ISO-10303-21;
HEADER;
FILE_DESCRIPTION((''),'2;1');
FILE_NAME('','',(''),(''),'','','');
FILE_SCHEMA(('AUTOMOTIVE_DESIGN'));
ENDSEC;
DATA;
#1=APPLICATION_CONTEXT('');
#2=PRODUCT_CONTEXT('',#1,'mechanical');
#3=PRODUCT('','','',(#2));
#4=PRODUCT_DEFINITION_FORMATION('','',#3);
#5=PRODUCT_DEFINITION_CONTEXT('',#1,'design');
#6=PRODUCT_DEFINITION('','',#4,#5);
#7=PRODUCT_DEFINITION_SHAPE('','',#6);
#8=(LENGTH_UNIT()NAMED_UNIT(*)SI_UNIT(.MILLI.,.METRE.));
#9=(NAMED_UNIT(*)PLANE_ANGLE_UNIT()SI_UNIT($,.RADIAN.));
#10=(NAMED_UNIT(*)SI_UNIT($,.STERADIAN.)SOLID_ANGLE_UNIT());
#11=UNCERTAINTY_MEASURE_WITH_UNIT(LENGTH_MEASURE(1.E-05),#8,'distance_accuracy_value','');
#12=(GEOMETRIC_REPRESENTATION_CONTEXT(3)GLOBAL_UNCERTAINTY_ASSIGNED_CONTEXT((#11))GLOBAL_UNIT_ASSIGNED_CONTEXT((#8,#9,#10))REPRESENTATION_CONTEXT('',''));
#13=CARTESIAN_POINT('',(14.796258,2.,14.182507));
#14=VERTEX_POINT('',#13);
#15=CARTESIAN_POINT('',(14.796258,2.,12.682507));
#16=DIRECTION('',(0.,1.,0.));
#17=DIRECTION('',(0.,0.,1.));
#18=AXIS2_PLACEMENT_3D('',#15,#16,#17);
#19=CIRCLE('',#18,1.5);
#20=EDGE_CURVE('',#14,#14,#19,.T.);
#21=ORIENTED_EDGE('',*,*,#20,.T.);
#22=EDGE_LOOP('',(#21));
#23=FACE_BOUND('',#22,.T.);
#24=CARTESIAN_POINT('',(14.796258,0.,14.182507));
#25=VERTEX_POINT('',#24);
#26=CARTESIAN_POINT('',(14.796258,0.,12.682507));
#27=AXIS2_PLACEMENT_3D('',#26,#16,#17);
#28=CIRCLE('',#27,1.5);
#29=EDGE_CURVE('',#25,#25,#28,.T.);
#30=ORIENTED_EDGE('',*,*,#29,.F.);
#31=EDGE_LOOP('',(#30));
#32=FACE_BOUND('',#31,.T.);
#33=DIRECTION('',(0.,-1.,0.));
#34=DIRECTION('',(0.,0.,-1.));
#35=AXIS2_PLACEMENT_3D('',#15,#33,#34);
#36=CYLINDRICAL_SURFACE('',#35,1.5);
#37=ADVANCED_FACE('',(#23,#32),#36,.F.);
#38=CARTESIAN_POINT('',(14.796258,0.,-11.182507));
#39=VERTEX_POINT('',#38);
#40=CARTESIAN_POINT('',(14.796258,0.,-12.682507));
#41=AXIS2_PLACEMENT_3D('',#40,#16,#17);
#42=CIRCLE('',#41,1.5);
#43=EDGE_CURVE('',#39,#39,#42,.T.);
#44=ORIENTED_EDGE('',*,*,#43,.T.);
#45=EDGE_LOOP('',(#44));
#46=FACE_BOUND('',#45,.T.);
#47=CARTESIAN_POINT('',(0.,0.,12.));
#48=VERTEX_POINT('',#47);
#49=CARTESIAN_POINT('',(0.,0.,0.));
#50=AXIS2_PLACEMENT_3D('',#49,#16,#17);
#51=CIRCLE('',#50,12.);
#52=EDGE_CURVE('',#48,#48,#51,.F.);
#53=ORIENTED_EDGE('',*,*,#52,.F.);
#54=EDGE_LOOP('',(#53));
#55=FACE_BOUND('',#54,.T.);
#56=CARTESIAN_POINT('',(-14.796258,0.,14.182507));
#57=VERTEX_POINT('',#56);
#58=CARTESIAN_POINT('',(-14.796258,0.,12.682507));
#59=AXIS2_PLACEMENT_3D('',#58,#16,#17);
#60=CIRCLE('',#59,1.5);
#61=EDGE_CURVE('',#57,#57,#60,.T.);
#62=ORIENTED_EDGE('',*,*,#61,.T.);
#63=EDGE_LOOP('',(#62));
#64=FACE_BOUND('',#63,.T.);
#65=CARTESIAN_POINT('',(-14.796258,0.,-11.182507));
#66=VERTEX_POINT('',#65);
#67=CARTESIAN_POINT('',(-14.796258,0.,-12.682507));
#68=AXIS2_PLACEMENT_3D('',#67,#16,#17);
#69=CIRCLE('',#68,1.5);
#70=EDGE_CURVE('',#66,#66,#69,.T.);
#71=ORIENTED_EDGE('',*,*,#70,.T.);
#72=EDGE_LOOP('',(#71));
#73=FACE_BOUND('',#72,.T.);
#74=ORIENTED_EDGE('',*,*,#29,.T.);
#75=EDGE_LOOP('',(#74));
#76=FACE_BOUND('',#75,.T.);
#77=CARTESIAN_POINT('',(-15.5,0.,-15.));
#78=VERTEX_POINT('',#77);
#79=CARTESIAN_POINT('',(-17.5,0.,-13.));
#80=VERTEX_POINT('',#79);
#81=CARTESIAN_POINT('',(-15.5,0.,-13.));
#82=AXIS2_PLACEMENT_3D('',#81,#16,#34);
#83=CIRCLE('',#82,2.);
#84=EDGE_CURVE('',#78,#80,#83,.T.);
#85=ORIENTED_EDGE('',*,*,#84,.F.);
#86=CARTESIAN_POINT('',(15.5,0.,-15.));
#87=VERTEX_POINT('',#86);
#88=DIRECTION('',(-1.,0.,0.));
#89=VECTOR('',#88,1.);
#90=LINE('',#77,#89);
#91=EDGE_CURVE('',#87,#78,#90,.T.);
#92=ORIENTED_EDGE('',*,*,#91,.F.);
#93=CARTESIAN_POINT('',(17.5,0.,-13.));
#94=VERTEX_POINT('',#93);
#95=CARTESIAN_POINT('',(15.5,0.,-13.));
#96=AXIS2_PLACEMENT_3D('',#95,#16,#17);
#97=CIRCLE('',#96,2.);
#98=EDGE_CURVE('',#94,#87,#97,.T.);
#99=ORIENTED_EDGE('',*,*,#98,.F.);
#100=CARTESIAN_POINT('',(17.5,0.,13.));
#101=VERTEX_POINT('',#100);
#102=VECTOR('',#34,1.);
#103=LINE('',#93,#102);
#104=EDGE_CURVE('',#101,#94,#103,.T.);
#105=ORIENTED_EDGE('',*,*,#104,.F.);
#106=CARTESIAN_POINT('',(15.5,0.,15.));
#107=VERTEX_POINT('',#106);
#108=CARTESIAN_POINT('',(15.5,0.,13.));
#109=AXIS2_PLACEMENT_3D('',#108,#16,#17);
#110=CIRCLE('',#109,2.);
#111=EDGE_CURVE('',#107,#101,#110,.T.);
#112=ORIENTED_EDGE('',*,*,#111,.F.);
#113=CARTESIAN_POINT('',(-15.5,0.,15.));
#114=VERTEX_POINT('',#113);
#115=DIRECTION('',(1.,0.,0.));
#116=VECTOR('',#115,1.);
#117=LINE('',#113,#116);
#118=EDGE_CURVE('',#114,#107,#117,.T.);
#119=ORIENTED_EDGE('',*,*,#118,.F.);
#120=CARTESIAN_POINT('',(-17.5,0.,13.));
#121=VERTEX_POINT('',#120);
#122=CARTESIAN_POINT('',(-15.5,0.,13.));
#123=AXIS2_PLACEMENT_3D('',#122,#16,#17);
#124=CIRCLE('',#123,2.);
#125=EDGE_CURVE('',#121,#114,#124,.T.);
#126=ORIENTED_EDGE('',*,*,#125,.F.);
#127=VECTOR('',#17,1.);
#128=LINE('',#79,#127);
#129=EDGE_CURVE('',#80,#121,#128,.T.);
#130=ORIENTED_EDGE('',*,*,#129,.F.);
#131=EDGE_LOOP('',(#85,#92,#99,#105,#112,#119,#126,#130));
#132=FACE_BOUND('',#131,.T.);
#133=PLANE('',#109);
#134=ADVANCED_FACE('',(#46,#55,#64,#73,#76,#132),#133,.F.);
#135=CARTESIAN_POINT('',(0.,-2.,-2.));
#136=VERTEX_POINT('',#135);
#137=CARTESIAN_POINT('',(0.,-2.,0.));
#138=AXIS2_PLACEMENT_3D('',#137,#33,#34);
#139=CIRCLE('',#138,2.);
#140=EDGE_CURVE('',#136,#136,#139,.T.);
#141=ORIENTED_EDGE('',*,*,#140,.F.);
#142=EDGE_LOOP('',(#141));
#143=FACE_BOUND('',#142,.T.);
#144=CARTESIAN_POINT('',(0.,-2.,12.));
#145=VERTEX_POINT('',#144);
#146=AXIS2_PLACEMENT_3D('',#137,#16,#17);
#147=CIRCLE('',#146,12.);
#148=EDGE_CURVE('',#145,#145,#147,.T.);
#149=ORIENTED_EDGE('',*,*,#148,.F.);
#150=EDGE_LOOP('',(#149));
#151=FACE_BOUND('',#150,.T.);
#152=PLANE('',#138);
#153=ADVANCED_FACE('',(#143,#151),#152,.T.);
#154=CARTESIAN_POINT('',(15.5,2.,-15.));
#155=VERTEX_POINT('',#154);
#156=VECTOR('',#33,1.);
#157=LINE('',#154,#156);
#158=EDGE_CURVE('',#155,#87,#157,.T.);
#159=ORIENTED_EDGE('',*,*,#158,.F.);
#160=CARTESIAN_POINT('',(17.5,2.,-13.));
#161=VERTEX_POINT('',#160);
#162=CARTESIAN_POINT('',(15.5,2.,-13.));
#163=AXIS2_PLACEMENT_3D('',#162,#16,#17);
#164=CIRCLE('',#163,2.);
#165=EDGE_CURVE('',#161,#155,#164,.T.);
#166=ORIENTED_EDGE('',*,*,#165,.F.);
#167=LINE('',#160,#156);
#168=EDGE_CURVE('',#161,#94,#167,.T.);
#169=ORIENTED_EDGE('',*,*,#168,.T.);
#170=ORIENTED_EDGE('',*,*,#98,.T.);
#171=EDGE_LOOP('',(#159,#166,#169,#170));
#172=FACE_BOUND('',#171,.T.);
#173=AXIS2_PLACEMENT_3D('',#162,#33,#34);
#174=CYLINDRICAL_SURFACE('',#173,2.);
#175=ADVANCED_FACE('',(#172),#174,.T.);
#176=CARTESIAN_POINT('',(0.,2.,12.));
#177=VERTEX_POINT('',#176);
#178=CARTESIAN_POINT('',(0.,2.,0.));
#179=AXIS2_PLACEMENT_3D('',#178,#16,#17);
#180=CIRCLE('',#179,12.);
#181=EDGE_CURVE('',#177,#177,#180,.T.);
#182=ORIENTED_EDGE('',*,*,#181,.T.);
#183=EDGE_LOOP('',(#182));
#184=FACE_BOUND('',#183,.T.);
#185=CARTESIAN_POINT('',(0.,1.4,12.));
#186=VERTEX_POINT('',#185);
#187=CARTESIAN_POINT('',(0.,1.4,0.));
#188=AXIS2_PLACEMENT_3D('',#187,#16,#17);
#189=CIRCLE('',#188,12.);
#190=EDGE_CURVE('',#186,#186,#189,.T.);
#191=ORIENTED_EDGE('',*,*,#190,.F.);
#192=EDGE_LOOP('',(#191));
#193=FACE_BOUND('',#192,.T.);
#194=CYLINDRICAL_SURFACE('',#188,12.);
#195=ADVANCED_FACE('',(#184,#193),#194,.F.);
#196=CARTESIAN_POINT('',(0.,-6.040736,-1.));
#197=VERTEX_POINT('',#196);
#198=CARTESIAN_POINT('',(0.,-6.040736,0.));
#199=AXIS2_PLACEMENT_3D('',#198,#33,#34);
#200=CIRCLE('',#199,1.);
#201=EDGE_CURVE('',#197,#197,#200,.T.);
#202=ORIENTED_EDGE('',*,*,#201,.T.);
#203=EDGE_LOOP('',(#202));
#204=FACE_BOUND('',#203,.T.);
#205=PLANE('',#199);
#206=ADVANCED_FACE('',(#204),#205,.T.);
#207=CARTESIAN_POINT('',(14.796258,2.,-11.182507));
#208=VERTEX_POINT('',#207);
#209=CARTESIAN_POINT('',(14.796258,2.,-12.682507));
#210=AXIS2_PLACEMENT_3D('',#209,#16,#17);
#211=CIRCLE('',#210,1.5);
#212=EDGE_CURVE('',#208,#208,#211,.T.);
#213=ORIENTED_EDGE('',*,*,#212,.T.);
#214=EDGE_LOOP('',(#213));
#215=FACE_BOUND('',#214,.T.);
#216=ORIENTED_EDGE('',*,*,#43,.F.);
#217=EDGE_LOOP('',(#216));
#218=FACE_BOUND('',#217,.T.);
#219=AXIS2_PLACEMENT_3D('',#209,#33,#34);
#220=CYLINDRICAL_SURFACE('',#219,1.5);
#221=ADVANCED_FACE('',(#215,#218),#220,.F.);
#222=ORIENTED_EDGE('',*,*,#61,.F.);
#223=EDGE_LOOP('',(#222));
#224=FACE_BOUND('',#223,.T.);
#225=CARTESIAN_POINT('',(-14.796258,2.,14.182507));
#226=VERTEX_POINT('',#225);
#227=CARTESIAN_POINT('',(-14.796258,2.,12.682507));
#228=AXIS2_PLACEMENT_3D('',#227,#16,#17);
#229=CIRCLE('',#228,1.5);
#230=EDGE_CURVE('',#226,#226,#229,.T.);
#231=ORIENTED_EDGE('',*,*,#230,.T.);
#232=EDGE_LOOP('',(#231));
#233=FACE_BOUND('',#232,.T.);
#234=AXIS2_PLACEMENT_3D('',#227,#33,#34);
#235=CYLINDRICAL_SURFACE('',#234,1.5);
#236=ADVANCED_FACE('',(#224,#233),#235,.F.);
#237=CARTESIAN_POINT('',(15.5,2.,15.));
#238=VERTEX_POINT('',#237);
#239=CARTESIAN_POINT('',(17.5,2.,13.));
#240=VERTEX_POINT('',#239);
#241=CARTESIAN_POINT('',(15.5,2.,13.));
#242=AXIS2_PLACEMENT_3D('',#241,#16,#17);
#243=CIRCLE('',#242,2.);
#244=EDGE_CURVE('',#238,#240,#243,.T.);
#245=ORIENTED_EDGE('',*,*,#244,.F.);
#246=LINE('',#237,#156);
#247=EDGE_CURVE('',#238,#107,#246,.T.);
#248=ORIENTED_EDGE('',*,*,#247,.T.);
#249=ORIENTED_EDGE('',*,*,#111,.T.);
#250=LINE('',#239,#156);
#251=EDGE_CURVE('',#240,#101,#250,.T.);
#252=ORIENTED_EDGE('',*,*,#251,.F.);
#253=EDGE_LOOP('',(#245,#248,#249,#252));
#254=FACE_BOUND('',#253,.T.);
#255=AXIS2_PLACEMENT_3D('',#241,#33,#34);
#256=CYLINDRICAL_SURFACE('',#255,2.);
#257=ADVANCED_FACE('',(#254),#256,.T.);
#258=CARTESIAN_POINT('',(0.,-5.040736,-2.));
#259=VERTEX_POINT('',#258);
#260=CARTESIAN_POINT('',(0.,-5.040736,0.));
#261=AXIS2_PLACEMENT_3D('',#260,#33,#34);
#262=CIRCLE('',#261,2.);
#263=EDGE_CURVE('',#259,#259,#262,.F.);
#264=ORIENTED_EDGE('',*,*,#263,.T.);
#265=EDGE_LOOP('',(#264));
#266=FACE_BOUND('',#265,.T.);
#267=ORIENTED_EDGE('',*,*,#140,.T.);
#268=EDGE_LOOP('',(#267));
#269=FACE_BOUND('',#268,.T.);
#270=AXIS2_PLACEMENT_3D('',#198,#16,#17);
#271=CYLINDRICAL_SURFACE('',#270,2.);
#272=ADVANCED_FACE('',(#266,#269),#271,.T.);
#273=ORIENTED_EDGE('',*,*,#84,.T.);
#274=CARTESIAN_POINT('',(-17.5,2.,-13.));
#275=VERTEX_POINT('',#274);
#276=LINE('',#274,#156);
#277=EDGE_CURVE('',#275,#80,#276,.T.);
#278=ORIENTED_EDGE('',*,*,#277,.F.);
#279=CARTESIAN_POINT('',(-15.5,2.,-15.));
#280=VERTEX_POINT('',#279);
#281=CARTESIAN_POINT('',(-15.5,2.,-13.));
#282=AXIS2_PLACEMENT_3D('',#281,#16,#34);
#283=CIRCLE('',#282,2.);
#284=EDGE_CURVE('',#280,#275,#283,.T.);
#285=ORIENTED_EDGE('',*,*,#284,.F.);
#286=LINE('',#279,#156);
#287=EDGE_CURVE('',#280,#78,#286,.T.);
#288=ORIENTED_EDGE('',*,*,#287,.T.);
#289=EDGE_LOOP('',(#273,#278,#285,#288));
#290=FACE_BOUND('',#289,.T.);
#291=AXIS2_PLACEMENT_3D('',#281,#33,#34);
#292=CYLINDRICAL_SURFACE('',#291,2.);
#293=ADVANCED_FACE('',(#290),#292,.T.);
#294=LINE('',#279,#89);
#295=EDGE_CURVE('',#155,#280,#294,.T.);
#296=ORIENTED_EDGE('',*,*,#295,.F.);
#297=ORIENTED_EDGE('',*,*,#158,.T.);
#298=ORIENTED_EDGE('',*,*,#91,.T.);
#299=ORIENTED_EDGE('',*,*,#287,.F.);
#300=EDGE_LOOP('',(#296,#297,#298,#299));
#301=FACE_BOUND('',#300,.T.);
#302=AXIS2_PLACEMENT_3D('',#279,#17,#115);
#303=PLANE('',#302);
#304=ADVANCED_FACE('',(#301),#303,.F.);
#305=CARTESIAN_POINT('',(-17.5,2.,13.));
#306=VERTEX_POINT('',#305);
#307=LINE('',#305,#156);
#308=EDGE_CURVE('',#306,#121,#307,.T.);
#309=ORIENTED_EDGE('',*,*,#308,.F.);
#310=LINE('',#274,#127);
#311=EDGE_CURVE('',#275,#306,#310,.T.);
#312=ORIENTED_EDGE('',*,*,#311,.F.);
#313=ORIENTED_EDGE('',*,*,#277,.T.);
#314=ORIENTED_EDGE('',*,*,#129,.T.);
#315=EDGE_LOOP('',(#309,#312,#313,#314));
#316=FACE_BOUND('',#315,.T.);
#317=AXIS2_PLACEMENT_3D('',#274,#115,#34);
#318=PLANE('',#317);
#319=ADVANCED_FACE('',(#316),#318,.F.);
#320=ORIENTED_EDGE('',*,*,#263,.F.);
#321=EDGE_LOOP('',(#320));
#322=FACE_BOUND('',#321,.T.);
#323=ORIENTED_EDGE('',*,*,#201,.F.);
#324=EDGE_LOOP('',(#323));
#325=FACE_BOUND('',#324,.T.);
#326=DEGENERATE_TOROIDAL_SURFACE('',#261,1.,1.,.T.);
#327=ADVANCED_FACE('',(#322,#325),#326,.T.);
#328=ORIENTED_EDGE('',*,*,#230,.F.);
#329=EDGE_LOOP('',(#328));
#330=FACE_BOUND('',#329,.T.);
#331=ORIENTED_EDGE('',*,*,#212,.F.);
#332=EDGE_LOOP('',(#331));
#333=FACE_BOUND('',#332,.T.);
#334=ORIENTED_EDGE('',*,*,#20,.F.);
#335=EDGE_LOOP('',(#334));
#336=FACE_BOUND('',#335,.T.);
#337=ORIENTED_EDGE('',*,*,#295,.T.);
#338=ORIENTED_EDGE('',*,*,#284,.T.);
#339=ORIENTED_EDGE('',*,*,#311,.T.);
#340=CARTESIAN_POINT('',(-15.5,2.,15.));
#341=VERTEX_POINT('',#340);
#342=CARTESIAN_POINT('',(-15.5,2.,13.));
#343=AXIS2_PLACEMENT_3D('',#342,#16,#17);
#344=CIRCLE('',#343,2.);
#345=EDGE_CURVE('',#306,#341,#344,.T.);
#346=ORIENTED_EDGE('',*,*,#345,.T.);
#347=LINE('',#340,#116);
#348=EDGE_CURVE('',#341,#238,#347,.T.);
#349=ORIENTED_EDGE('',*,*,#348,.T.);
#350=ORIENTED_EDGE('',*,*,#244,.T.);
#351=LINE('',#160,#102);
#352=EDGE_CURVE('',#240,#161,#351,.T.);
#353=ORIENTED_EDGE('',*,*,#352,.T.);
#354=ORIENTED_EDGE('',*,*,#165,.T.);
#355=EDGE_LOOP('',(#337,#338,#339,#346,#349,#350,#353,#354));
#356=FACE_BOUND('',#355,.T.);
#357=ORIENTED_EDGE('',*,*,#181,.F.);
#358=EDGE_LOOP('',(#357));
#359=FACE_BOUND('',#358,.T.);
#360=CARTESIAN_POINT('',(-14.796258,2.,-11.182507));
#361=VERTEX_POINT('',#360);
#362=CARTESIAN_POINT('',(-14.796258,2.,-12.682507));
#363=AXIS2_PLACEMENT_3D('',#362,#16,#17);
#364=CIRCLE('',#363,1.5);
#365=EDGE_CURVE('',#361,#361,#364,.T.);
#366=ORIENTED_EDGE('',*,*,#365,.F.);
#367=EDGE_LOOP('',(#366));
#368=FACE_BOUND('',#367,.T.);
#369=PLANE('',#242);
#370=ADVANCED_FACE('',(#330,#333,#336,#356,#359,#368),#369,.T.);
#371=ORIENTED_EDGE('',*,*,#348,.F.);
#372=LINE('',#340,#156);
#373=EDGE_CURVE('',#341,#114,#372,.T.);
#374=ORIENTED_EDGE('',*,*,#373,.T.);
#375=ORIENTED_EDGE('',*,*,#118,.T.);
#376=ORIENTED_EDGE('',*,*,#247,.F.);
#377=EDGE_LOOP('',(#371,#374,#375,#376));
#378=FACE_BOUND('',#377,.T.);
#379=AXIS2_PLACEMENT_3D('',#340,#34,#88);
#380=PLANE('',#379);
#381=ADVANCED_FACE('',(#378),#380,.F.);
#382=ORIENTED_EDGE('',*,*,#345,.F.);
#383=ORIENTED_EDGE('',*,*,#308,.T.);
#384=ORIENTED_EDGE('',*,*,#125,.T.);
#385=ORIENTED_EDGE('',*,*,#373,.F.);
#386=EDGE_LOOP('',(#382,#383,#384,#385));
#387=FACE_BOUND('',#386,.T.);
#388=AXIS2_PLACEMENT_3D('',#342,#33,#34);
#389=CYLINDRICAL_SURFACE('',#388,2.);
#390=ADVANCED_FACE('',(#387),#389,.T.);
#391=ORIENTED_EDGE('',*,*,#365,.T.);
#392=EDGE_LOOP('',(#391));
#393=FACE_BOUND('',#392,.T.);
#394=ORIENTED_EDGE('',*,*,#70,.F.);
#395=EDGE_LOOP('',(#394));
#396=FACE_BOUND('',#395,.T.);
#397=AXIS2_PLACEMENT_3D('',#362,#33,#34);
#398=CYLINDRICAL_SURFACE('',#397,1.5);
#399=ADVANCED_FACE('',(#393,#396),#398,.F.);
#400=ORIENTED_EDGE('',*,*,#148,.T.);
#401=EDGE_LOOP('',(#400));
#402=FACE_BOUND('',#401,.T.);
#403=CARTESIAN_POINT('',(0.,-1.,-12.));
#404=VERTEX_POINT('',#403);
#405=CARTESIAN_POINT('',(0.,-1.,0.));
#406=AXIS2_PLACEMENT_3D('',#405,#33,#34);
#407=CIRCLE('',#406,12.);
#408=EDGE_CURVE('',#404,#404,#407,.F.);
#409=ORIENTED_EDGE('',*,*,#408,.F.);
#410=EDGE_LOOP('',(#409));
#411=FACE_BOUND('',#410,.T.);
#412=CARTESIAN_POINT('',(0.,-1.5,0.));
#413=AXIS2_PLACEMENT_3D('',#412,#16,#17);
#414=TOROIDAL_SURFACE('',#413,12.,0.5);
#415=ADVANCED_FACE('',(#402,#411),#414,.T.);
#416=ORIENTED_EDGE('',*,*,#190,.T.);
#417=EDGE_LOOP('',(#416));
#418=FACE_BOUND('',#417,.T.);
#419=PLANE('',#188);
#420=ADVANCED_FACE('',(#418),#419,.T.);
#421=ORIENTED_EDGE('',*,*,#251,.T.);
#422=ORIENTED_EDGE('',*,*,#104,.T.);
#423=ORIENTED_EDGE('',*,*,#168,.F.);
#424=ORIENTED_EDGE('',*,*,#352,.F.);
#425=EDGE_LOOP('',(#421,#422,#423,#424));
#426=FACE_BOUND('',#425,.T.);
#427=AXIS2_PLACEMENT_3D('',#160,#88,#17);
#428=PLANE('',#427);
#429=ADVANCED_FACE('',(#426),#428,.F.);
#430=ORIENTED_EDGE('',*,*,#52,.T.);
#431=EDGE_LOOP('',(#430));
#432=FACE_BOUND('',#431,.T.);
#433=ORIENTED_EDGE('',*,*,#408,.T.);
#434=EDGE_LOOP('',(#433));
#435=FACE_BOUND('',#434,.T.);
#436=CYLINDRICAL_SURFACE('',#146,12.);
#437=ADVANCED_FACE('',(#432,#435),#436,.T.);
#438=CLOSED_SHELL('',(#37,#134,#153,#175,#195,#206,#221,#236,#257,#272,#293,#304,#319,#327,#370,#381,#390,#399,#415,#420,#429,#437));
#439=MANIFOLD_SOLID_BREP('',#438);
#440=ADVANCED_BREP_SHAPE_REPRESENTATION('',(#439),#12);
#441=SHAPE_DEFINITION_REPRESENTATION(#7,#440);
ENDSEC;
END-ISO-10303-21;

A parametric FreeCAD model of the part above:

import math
import FreeCAD as App
import Part
import Sketcher

V = App.Vector


def edges_at(feature, points):
    """Names of the edges that pass closest to the given points."""
    edges = feature.Shape.Edges
    near = lambda p: min(range(len(edges)), key=lambda i: edges[i].distToShape(Part.Vertex(*p))[0])
    return sorted({f"Edge{near(p) + 1}" for p in points})

doc = App.newDocument("Part")
body = doc.addObject("PartDesign::Body", "Body")

sketch1 = body.newObject("Sketcher::SketchObject", "Sketch")
sketch1.AttachmentSupport = (doc.getObject("XZ_Plane"), [""])
sketch1.MapMode = "FlatFace"
sketch1.addGeometry([
    Part.LineSegment(V(15.5, -15, 0), V(-15.5, -15, 0)),
    Part.ArcOfCircle(Part.Circle(V(-15.5, -13, 0), V(0, 0, 1), 2), math.radians(-180), math.radians(-90)),
    Part.LineSegment(V(-17.5, -13, 0), V(-17.5, 13, 0)),
    Part.ArcOfCircle(Part.Circle(V(-15.5, 13, 0), V(0, 0, 1), 2), math.radians(90), math.radians(180)),
    Part.LineSegment(V(-15.5, 15, 0), V(15.5, 15, 0)),
    Part.ArcOfCircle(Part.Circle(V(15.5, 13, 0), V(0, 0, 1), 2), math.radians(0), math.radians(90)),
    Part.LineSegment(V(17.5, 13, 0), V(17.5, -13, 0)),
    Part.ArcOfCircle(Part.Circle(V(15.5, -13, 0), V(0, 0, 1), 2), math.radians(-90), math.radians(0)),
    Part.Circle(V(14.796258, 12.682507, 0), V(0, 0, 1), 1.5),
    Part.Circle(V(-14.796258, 12.682507, 0), V(0, 0, 1), 1.5),
    Part.Circle(V(14.796258, -12.682507, 0), V(0, 0, 1), 1.5),
    Part.Circle(V(-14.796258, -12.682507, 0), V(0, 0, 1), 1.5),
], False)
sketch1.addConstraint([
    Sketcher.Constraint("Tangent", 0, 2, 1, 2),
    Sketcher.Constraint("Tangent", 1, 1, 2, 1),
    Sketcher.Constraint("Tangent", 2, 2, 3, 2),
    Sketcher.Constraint("Tangent", 3, 1, 4, 1),
    Sketcher.Constraint("Tangent", 4, 2, 5, 2),
    Sketcher.Constraint("Tangent", 5, 1, 6, 1),
    Sketcher.Constraint("Tangent", 6, 2, 7, 2),
    Sketcher.Constraint("Tangent", 7, 1, 0, 1),
    Sketcher.Constraint("Horizontal", 0),
    Sketcher.Constraint("Vertical", 2),
    Sketcher.Constraint("Horizontal", 4),
    Sketcher.Constraint("Vertical", 6),
    Sketcher.Constraint("Equal", 1, 3),
    Sketcher.Constraint("Equal", 3, 5),
    Sketcher.Constraint("Equal", 5, 7),
    Sketcher.Constraint("Equal", 8, 9),
    Sketcher.Constraint("Equal", 9, 10),
    Sketcher.Constraint("Equal", 10, 11),
    Sketcher.Constraint("Symmetric", 1, 3, 5, 3, -1, 1),
    Sketcher.Constraint("Symmetric", 9, 3, 10, 3, -1, 1),
    Sketcher.Constraint("Symmetric", 8, 3, 11, 3, -1, 1),
    Sketcher.Constraint("Symmetric", 8, 3, 9, 3, -2),
    Sketcher.Constraint("Diameter", 8, 3.0),
    Sketcher.Constraint("Radius", 1, 2.0),
    Sketcher.Constraint("DistanceX", 0, 2, 0, 1, 31.0),
    Sketcher.Constraint("DistanceY", 2, 1, 2, 2, 26.0),
    Sketcher.Constraint("DistanceX", -1, 1, 8, 3, 14.796258),
    Sketcher.Constraint("DistanceY", -1, 1, 8, 3, 12.682507),
])
pad1 = body.newObject("PartDesign::Pad", "Pad")
pad1.Profile = sketch1
pad1.Length = 2
pad1.Reversed = True

sketch2 = body.newObject("Sketcher::SketchObject", "Sketch001")
sketch2.AttachmentSupport = (doc.getObject("XZ_Plane"), [""])
sketch2.MapMode = "FlatFace"
sketch2.addGeometry(Part.Circle(V(0, 0, 0), V(0, 0, 1), 12), False)
sketch2.addConstraint([
    Sketcher.Constraint("Coincident", 0, 3, -1, 1),
    Sketcher.Constraint("Diameter", 0, 24.0),
])
pad2 = body.newObject("PartDesign::Pad", "Pad001")
pad2.Profile = sketch2
pad2.Length = 2

sketch3 = body.newObject("Sketcher::SketchObject", "Sketch002")
sketch3.AttachmentSupport = (doc.getObject("YZ_Plane"), [""])
sketch3.MapMode = "FlatFace"
sketch3.addGeometry(Part.Circle(V(-1.5, 12, 0), V(0, 0, 1), 0.5), False)
sketch3.addConstraint([
    Sketcher.Constraint("Diameter", 0, 1.0),
    Sketcher.Constraint("DistanceY", -1, 1, 0, 3, 12.0),
    Sketcher.Constraint("DistanceX", 0, 3, -1, 1, 1.5),
])
revolution = body.newObject("PartDesign::Revolution", "Revolution")
revolution.Profile = sketch3
revolution.ReferenceAxis = (sketch3, ["H_Axis"])
revolution.Angle = 360

sketch4 = body.newObject("Sketcher::SketchObject", "Sketch003")
sketch4.AttachmentSupport = (doc.getObject("XZ_Plane"), [""])
sketch4.MapMode = "FlatFace"
sketch4.AttachmentOffset = App.Placement(V(0, 0, 2), App.Rotation())
sketch4.addGeometry(Part.Circle(V(0, 0, 0), V(0, 0, 1), 2), False)
sketch4.addConstraint([
    Sketcher.Constraint("Coincident", 0, 3, -1, 1),
    Sketcher.Constraint("Diameter", 0, 4.0),
])
pad3 = body.newObject("PartDesign::Pad", "Pad002")
pad3.Profile = sketch4
pad3.Length = 4.040736
doc.recompute()

fillet = body.newObject("PartDesign::Fillet", "Fillet")
fillet.Base = (pad3, edges_at(pad3, [(0, -6.041, 2)]))
fillet.Radius = 1

sketch5 = body.newObject("Sketcher::SketchObject", "Sketch004")
sketch5.AttachmentSupport = (doc.getObject("XZ_Plane"), [""])
sketch5.MapMode = "FlatFace"
sketch5.AttachmentOffset = App.Placement(V(0, 0, -2), App.Rotation())
sketch5.addGeometry(Part.Circle(V(0, 0, 0), V(0, 0, 1), 12), False)
sketch5.addConstraint([
    Sketcher.Constraint("Coincident", 0, 3, -1, 1),
    Sketcher.Constraint("Diameter", 0, 24.0),
])
pocket1 = body.newObject("PartDesign::Pocket", "Pocket")
pocket1.Profile = sketch5
pocket1.Length = 0.6
pocket1.Reversed = True

doc.recompute()
